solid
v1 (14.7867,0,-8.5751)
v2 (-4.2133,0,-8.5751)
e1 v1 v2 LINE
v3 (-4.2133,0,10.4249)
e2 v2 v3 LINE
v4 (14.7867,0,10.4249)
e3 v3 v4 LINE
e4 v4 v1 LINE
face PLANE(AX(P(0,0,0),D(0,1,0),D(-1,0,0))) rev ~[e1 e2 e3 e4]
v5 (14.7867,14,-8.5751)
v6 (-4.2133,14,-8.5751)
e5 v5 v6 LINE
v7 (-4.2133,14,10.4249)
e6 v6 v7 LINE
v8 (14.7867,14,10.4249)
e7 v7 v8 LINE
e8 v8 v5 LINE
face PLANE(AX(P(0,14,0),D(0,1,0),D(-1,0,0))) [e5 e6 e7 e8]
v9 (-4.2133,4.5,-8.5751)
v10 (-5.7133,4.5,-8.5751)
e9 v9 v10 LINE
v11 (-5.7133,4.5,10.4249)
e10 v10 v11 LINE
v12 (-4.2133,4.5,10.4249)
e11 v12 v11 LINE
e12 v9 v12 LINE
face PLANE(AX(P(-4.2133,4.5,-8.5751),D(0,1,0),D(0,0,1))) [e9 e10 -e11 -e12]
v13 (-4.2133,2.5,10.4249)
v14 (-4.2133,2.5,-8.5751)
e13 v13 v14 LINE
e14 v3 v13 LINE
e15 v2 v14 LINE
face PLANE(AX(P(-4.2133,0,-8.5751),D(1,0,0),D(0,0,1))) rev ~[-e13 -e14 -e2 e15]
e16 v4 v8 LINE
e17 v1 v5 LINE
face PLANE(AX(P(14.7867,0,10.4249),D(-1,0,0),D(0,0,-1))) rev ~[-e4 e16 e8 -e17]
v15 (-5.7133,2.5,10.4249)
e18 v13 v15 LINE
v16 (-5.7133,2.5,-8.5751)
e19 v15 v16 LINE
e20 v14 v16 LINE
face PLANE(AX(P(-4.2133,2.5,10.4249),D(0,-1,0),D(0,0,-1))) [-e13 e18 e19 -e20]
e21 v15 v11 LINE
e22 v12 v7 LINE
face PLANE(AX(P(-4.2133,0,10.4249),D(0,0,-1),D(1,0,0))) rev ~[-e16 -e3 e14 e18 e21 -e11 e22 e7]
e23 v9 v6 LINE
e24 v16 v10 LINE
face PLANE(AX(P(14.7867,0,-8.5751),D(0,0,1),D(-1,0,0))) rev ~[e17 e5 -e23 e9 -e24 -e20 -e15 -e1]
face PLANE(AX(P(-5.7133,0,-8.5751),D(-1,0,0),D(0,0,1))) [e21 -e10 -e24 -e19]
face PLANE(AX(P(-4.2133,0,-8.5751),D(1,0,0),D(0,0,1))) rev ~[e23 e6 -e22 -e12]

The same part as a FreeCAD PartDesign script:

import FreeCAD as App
import Part
import Sketcher


def add_polygon(sketch, points):
    """Adds a closed chain of lines whose ends are joined by coincident constraints."""
    first, n = sketch.GeometryCount, len(points)
    for a, b in zip(points, points[1:] + points[:1]):
        sketch.addGeometry(Part.LineSegment(App.Vector(*a, 0), App.Vector(*b, 0)), False)
    for i in range(n):
        sketch.addConstraint(Sketcher.Constraint("Coincident", first + i, 2, first + (i + 1) % n, 1))

doc = App.newDocument("Part")
body = doc.addObject("PartDesign::Body", "Body")

sketch1 = body.newObject("Sketcher::SketchObject", "Sketch")
sketch1.AttachmentSupport = (doc.getObject("XZ_Plane"), [""])
sketch1.MapMode = "FlatFace"
add_polygon(sketch1, [(-4, -9), (-4, 10), (15, 10), (15, -9)])
sketch1.addConstraint([
    Sketcher.Constraint("Vertical", 0),
    Sketcher.Constraint("Horizontal", 1),
    Sketcher.Constraint("Vertical", 2),
    Sketcher.Constraint("Horizontal", 3),
    Sketcher.Constraint("Equal", 3, 0),
    Sketcher.Constraint("DistanceX", 1, 1, 1, 2, 19.0),
    Sketcher.Constraint("DistanceY", -1, 1, 0, 2, 10.425),
    Sketcher.Constraint("DistanceX", 0, 2, -1, 1, 4.2133),
])
pad1 = body.newObject("PartDesign::Pad", "Pad")
pad1.Profile = sketch1
pad1.Length = 14
pad1.Reversed = True

sketch2 = body.newObject("Sketcher::SketchObject", "Sketch001")
sketch2.AttachmentSupport = (doc.getObject("YZ_Plane"), [""])
sketch2.MapMode = "FlatFace"
sketch2.AttachmentOffset = App.Placement(App.Vector(0, 0, -4.2133), App.Rotation())
add_polygon(sketch2, [(4.5, -8.6), (2.5, -8.6), (2.5, 10.4), (4.5, 10.4)])
sketch2.addConstraint([
    Sketcher.Constraint("Horizontal", 0),
    Sketcher.Constraint("Vertical", 1),
    Sketcher.Constraint("Horizontal", 2),
    Sketcher.Constraint("Vertical", 3),
    Sketcher.Constraint("DistanceX", 0, 2, 0, 1, 2.0),
    Sketcher.Constraint("DistanceX", -1, 1, 0, 2, 2.5),
    Sketcher.Constraint("DistanceY", 1, 1, 1, 2, 19.0),
    Sketcher.Constraint("DistanceY", 0, 2, -1, 1, 8.575),
])
pad2 = body.newObject("PartDesign::Pad", "Pad001")
pad2.Profile = sketch2
pad2.Length = 1.5
pad2.Reversed = True

doc.recompute()
